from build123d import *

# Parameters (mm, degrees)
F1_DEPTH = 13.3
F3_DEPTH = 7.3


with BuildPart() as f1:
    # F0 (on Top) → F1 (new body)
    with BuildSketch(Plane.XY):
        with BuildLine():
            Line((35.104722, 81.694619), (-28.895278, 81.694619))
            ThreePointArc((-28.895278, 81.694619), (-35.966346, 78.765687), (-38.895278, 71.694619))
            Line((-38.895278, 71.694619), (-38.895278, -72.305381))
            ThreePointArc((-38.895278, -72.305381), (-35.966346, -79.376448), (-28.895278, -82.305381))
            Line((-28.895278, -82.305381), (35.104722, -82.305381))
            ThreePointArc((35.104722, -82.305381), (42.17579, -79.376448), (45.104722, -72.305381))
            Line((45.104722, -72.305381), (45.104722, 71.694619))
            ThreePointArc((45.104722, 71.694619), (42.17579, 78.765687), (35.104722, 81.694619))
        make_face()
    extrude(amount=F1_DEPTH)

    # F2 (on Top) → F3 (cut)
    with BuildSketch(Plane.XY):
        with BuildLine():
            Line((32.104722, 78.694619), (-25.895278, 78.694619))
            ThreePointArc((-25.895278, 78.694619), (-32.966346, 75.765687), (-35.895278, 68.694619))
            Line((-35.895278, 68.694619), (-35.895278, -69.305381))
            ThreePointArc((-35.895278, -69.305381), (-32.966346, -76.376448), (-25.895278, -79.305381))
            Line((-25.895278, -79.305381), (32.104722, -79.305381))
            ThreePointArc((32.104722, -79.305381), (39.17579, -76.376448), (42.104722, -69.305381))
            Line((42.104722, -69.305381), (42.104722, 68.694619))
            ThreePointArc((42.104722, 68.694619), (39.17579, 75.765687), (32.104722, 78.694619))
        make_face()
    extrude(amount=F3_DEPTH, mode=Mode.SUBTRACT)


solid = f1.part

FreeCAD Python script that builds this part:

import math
import FreeCAD as App
import Part
import Sketcher
from FreeCAD import Vector

doc = App.newDocument("Part")
body = doc.addObject("PartDesign::Body", "Body")

# Sketch on XY plane
sketch1 = body.newObject("Sketcher::SketchObject", "Sketch")
sketch1.AttachmentSupport = (doc.getObject("XY_Plane"), [""])
sketch1.MapMode = "FlatFace"
sketch1.addGeometry([
    Part.LineSegment(Vector(35, 82, 0), Vector(-29, 82, 0)),  # 0
    Part.ArcOfCircle(Part.Circle(Vector(-29, 72, 0), Vector(0, 0, 1), 10), math.radians(90), math.radians(180)),  # 1
    Part.LineSegment(Vector(-39, 72, 0), Vector(-39, -72, 0)),  # 2
    Part.ArcOfCircle(Part.Circle(Vector(-29, -72, 0), Vector(0, 0, 1), 10), math.radians(-180), math.radians(-90)),  # 3
    Part.LineSegment(Vector(-29, -82, 0), Vector(35, -82, 0)),  # 4
    Part.ArcOfCircle(Part.Circle(Vector(35, -72, 0), Vector(0, 0, 1), 10), math.radians(-90), math.radians(0)),  # 5
    Part.LineSegment(Vector(45, -72, 0), Vector(45, 72, 0)),  # 6
    Part.ArcOfCircle(Part.Circle(Vector(35, 72, 0), Vector(0, 0, 1), 10), math.radians(0), math.radians(90)),  # 7
], False)
sketch1.addConstraint([
    Sketcher.Constraint("Tangent", 0, 2, 1, 1),
    Sketcher.Constraint("Tangent", 1, 2, 2, 1),
    Sketcher.Constraint("Tangent", 2, 2, 3, 1),
    Sketcher.Constraint("Tangent", 3, 2, 4, 1),
    Sketcher.Constraint("Tangent", 4, 2, 5, 1),
    Sketcher.Constraint("Tangent", 5, 2, 6, 1),
    Sketcher.Constraint("Tangent", 6, 2, 7, 1),
    Sketcher.Constraint("Tangent", 7, 2, 0, 1),
    Sketcher.Constraint("Horizontal", 0),
    Sketcher.Constraint("Vertical", 2),
    Sketcher.Constraint("Horizontal", 4),
    Sketcher.Constraint("Vertical", 6),
    Sketcher.Constraint("Equal", 1, 3),
    Sketcher.Constraint("Equal", 3, 5),
    Sketcher.Constraint("Equal", 5, 7),
    Sketcher.Constraint("Radius", 1, 9.999999),
    Sketcher.Constraint("DistanceX", 0, 2, 0, 1, 64.0),
    Sketcher.Constraint("DistanceY", 2, 2, 2, 1, 144.0),
    Sketcher.Constraint("DistanceX", 1, 3, -1, 1, 28.895279),
    Sketcher.Constraint("DistanceY", -1, 1, 1, 3, 71.69462),
])
pad1 = body.newObject("PartDesign::Pad", "Pad")
pad1.Profile = sketch1
pad1.Length = 13.3

# Sketch on XY plane
sketch2 = body.newObject("Sketcher::SketchObject", "Sketch001")
sketch2.AttachmentSupport = (doc.getObject("XY_Plane"), [""])
sketch2.MapMode = "FlatFace"
sketch2.addGeometry([
    Part.LineSegment(Vector(32, 79, 0), Vector(-26, 79, 0)),  # 0
    Part.ArcOfCircle(Part.Circle(Vector(-26, 69, 0), Vector(0, 0, 1), 10), math.radians(90), math.radians(180)),  # 1
    Part.LineSegment(Vector(-36, 69, 0), Vector(-36, -69, 0)),  # 2
    Part.ArcOfCircle(Part.Circle(Vector(-26, -69, 0), Vector(0, 0, 1), 10), math.radians(-180), math.radians(-90)),  # 3
    Part.LineSegment(Vector(-26, -79, 0), Vector(32, -79, 0)),  # 4
    Part.ArcOfCircle(Part.Circle(Vector(32, -69, 0), Vector(0, 0, 1), 10), math.radians(-90), math.radians(0)),  # 5
    Part.LineSegment(Vector(42, -69, 0), Vector(42, 69, 0)),  # 6
    Part.ArcOfCircle(Part.Circle(Vector(32, 69, 0), Vector(0, 0, 1), 10), math.radians(0), math.radians(90)),  # 7
], False)
sketch2.addConstraint([
    Sketcher.Constraint("Tangent", 0, 2, 1, 1),
    Sketcher.Constraint("Tangent", 1, 2, 2, 1),
    Sketcher.Constraint("Tangent", 2, 2, 3, 1),
    Sketcher.Constraint("Tangent", 3, 2, 4, 1),
    Sketcher.Constraint("Tangent", 4, 2, 5, 1),
    Sketcher.Constraint("Tangent", 5, 2, 6, 1),
    Sketcher.Constraint("Tangent", 6, 2, 7, 1),
    Sketcher.Constraint("Tangent", 7, 2, 0, 1),
    Sketcher.Constraint("Horizontal", 0),
    Sketcher.Constraint("Vertical", 2),
    Sketcher.Constraint("Horizontal", 4),
    Sketcher.Constraint("Vertical", 6),
    Sketcher.Constraint("Equal", 1, 3),
    Sketcher.Constraint("Equal", 3, 5),
    Sketcher.Constraint("Equal", 5, 7),
    Sketcher.Constraint("Radius", 1, 9.999999),
    Sketcher.Constraint("DistanceX", 0, 2, 0, 1, 58.0),
    Sketcher.Constraint("DistanceY", 2, 2, 2, 1, 138.0),
    Sketcher.Constraint("DistanceX", 1, 3, -1, 1, 25.895279),
    Sketcher.Constraint("DistanceY", -1, 1, 1, 3, 68.69462),
])
pocket1 = body.newObject("PartDesign::Pocket", "Pocket")
pocket1.Profile = sketch2
pocket1.Length = 7.3
pocket1.Reversed = True

doc.recompute()
